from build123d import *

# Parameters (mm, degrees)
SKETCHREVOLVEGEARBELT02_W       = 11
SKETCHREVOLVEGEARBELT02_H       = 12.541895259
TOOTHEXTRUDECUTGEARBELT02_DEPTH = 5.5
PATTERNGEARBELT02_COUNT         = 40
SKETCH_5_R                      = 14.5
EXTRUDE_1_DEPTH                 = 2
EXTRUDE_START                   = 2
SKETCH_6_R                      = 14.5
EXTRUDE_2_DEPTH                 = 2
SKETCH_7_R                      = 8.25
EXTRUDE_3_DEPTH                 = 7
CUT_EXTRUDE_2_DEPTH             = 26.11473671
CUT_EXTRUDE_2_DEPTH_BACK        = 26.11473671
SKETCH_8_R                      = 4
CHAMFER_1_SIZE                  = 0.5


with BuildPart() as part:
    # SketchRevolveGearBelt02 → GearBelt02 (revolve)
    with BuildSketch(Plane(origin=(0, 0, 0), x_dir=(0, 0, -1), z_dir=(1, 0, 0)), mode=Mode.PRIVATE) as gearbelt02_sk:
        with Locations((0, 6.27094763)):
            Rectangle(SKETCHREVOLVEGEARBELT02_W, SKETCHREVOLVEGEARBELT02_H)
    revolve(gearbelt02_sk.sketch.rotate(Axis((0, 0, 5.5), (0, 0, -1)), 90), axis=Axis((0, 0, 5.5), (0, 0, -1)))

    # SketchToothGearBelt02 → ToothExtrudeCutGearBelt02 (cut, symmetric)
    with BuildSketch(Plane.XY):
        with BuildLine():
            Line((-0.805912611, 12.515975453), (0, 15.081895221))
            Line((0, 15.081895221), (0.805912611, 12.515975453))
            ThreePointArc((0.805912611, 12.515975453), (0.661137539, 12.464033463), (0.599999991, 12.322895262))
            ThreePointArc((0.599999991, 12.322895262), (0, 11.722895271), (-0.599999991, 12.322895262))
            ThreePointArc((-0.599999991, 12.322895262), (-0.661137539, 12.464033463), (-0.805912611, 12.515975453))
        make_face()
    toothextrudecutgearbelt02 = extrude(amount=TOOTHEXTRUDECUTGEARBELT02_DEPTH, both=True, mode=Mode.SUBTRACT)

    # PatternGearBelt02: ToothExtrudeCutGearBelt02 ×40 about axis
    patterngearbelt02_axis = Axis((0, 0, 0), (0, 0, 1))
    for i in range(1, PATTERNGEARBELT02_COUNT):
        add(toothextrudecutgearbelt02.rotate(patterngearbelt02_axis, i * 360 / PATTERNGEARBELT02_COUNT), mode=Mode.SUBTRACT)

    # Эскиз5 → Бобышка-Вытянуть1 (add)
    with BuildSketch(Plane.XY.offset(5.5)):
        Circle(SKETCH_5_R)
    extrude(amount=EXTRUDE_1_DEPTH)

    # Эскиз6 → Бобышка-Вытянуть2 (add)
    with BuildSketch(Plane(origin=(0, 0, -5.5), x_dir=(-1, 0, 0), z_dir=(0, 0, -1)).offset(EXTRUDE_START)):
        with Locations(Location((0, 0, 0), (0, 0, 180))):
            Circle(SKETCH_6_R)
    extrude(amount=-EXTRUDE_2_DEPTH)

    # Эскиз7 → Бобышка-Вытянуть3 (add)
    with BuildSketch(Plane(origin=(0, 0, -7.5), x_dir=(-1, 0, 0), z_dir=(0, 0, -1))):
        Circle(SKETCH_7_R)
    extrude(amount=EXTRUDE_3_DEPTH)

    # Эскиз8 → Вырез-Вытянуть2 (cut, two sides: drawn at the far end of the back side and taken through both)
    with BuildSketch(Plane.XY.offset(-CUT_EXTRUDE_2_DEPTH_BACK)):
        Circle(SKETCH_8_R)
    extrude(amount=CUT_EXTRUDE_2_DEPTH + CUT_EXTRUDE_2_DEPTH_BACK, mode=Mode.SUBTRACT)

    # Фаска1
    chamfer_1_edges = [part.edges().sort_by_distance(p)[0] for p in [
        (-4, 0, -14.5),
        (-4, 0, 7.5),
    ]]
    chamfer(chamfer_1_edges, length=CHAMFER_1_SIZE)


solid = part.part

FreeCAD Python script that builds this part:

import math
import FreeCAD as App
import Part
import Sketcher


def edges_at(feature, points):
    """Names of the edges that pass closest to the given points."""
    edges = feature.Shape.Edges
    near = lambda p: min(range(len(edges)), key=lambda i: edges[i].distToShape(Part.Vertex(*p))[0])
    return sorted({f"Edge{near(p) + 1}" for p in points})

doc = App.newDocument("Part")
body = doc.addObject("PartDesign::Body", "Body")

sketch1 = body.newObject("Sketcher::SketchObject", "Sketch")
sketch1.AttachmentSupport = (doc.getObject("YZ_Plane"), [""])
sketch1.MapMode = "FlatFace"
sketch1.addGeometry([
    Part.LineSegment(App.Vector(13, 6, 0), App.Vector(0, 6, 0)),
    Part.LineSegment(App.Vector(0, 6, 0), App.Vector(0, -6, 0)),
    Part.LineSegment(App.Vector(0, -6, 0), App.Vector(13, -6, 0)),
    Part.LineSegment(App.Vector(13, -6, 0), App.Vector(13, 6, 0)),
], False)
sketch1.addConstraint([
    Sketcher.Constraint("Coincident", 0, 2, 1, 1),
    Sketcher.Constraint("Coincident", 1, 2, 2, 1),
    Sketcher.Constraint("Coincident", 2, 2, 3, 1),
    Sketcher.Constraint("Coincident", 3, 2, 0, 1),
    Sketcher.Constraint("Horizontal", 0),
    Sketcher.Constraint("Vertical", 1),
    Sketcher.Constraint("Horizontal", 2),
    Sketcher.Constraint("Vertical", 3),
    Sketcher.Constraint("Symmetric", 0, 2, 1, 2, -1, 1),
    Sketcher.Constraint("DistanceY", 1, 2, 1, 1, 11.0),
    Sketcher.Constraint("DistanceX", 0, 2, 0, 1, 12.541895),
])
revolution = body.newObject("PartDesign::Revolution", "Revolution")
revolution.Profile = sketch1
revolution.ReferenceAxis = (sketch1, ["V_Axis"])
revolution.Angle = 360

sketch2 = body.newObject("Sketcher::SketchObject", "Sketch001")
sketch2.AttachmentSupport = (doc.getObject("XY_Plane"), [""])
sketch2.MapMode = "FlatFace"
sketch2.addGeometry([
    Part.LineSegment(App.Vector(0, 15.08, 0), App.Vector(-0.81, 12.52, 0)),
    Part.ArcOfCircle(Part.Circle(App.Vector(-0.79, 12.32, 0), App.Vector(0, 0, 1), 0.19), math.radians(0), math.radians(94)),
    Part.ArcOfCircle(Part.Circle(App.Vector(0, 12.32, 0), App.Vector(0, 0, 1), 0.6), math.radians(180), math.radians(360)),
    Part.ArcOfCircle(Part.Circle(App.Vector(0.79, 12.32, 0), App.Vector(0, 0, 1), 0.19), math.radians(86), math.radians(180)),
    Part.LineSegment(App.Vector(0.81, 12.52, 0), App.Vector(0, 15.08, 0)),
], False)
sketch2.addConstraint([
    Sketcher.Constraint("Coincident", 0, 2, 1, 2),
    Sketcher.Constraint("Tangent", 1, 1, 2, 1),
    Sketcher.Constraint("Tangent", 2, 2, 3, 2),
    Sketcher.Constraint("Coincident", 3, 1, 4, 1),
    Sketcher.Constraint("Coincident", 4, 2, 0, 1),
    Sketcher.Constraint("Equal", 1, 3),
    Sketcher.Constraint("Symmetric", 1, 3, 3, 3, -2),
    Sketcher.Constraint("PointOnObject", 4, 2, -2),
    Sketcher.Constraint("Horizontal", 1, 3, 2, 3),
    Sketcher.Constraint("Horizontal", 0, 2, 3, 1),
    Sketcher.Constraint("Radius", 2, 0.6),
    Sketcher.Constraint("Radius", 1, 0.19348),
    Sketcher.Constraint("DistanceY", 2, 3, 4, 2, 2.759),
    Sketcher.Constraint("DistanceY", 1, 3, 0, 2, 0.19308),
    Sketcher.Constraint("DistanceY", -1, 1, 1, 3, 12.322895),
])
pocket1 = body.newObject("PartDesign::Pocket", "Pocket")
pocket1.Profile = sketch2
pocket1.Length = 11
pocket1.Midplane = True
doc.recompute()

polarpattern = body.newObject("PartDesign::PolarPattern", "PolarPattern")
polarpattern.Originals = [pocket1]
polarpattern.Axis = (doc.getObject("Z_Axis"), [""])
polarpattern.Angle = 360
polarpattern.Occurrences = 40
body.Tip = polarpattern

sketch3 = body.newObject("Sketcher::SketchObject", "Sketch002")
sketch3.AttachmentSupport = (doc.getObject("XY_Plane"), [""])
sketch3.MapMode = "FlatFace"
sketch3.AttachmentOffset = App.Placement(App.Vector(0, 0, 5.5), App.Rotation())
sketch3.addGeometry(Part.Circle(App.Vector(0, 0, 0), App.Vector(0, 0, 1), 14), False)
sketch3.addConstraint([
    Sketcher.Constraint("Coincident", 0, 3, -1, 1),
    Sketcher.Constraint("Diameter", 0, 29.0),
])
pad1 = body.newObject("PartDesign::Pad", "Pad")
pad1.Profile = sketch3
pad1.Length = 2

sketch4 = body.newObject("Sketcher::SketchObject", "Sketch003")
sketch4.AttachmentSupport = (doc.getObject("XY_Plane"), [""])
sketch4.MapMode = "FlatFace"
sketch4.AttachmentOffset = App.Placement(App.Vector(0, 0, -7.5), App.Rotation())
sketch4.addGeometry(Part.Circle(App.Vector(0, 0, 0), App.Vector(0, 0, 1), 14), False)
sketch4.addConstraint([
    Sketcher.Constraint("Coincident", 0, 3, -1, 1),
    Sketcher.Constraint("Diameter", 0, 29.0),
])
pad2 = body.newObject("PartDesign::Pad", "Pad001")
pad2.Profile = sketch4
pad2.Length = 2

sketch5 = body.newObject("Sketcher::SketchObject", "Sketch004")
sketch5.AttachmentSupport = (doc.getObject("XY_Plane"), [""])
sketch5.MapMode = "FlatFace"
sketch5.AttachmentOffset = App.Placement(App.Vector(0, 0, -7.5), App.Rotation())
sketch5.addGeometry(Part.Circle(App.Vector(0, 0, 0), App.Vector(0, 0, 1), 8), False)
sketch5.addConstraint([
    Sketcher.Constraint("Coincident", 0, 3, -1, 1),
    Sketcher.Constraint("Diameter", 0, 16.5),
])
pad3 = body.newObject("PartDesign::Pad", "Pad002")
pad3.Profile = sketch5
pad3.Length = 7
pad3.Reversed = True

sketch6 = body.newObject("Sketcher::SketchObject", "Sketch005")
sketch6.AttachmentSupport = (doc.getObject("XY_Plane"), [""])
sketch6.MapMode = "FlatFace"
sketch6.addGeometry(Part.Circle(App.Vector(0, 0, 0), App.Vector(0, 0, 1), 4), False)
sketch6.addConstraint([
    Sketcher.Constraint("Coincident", 0, 3, -1, 1),
    Sketcher.Constraint("Diameter", 0, 8.0),
])
pocket2 = body.newObject("PartDesign::Pocket", "Pocket001")
pocket2.Profile = sketch6
pocket2.Type = "ThroughAll"
pocket2.Midplane = True
doc.recompute()

chamfer = body.newObject("PartDesign::Chamfer", "Chamfer")
chamfer.Base = (pocket2, edges_at(pocket2, [(-4, 0, -14.5), (-4, 0, 7.5)]))
chamfer.Size = 0.5

doc.recompute()
